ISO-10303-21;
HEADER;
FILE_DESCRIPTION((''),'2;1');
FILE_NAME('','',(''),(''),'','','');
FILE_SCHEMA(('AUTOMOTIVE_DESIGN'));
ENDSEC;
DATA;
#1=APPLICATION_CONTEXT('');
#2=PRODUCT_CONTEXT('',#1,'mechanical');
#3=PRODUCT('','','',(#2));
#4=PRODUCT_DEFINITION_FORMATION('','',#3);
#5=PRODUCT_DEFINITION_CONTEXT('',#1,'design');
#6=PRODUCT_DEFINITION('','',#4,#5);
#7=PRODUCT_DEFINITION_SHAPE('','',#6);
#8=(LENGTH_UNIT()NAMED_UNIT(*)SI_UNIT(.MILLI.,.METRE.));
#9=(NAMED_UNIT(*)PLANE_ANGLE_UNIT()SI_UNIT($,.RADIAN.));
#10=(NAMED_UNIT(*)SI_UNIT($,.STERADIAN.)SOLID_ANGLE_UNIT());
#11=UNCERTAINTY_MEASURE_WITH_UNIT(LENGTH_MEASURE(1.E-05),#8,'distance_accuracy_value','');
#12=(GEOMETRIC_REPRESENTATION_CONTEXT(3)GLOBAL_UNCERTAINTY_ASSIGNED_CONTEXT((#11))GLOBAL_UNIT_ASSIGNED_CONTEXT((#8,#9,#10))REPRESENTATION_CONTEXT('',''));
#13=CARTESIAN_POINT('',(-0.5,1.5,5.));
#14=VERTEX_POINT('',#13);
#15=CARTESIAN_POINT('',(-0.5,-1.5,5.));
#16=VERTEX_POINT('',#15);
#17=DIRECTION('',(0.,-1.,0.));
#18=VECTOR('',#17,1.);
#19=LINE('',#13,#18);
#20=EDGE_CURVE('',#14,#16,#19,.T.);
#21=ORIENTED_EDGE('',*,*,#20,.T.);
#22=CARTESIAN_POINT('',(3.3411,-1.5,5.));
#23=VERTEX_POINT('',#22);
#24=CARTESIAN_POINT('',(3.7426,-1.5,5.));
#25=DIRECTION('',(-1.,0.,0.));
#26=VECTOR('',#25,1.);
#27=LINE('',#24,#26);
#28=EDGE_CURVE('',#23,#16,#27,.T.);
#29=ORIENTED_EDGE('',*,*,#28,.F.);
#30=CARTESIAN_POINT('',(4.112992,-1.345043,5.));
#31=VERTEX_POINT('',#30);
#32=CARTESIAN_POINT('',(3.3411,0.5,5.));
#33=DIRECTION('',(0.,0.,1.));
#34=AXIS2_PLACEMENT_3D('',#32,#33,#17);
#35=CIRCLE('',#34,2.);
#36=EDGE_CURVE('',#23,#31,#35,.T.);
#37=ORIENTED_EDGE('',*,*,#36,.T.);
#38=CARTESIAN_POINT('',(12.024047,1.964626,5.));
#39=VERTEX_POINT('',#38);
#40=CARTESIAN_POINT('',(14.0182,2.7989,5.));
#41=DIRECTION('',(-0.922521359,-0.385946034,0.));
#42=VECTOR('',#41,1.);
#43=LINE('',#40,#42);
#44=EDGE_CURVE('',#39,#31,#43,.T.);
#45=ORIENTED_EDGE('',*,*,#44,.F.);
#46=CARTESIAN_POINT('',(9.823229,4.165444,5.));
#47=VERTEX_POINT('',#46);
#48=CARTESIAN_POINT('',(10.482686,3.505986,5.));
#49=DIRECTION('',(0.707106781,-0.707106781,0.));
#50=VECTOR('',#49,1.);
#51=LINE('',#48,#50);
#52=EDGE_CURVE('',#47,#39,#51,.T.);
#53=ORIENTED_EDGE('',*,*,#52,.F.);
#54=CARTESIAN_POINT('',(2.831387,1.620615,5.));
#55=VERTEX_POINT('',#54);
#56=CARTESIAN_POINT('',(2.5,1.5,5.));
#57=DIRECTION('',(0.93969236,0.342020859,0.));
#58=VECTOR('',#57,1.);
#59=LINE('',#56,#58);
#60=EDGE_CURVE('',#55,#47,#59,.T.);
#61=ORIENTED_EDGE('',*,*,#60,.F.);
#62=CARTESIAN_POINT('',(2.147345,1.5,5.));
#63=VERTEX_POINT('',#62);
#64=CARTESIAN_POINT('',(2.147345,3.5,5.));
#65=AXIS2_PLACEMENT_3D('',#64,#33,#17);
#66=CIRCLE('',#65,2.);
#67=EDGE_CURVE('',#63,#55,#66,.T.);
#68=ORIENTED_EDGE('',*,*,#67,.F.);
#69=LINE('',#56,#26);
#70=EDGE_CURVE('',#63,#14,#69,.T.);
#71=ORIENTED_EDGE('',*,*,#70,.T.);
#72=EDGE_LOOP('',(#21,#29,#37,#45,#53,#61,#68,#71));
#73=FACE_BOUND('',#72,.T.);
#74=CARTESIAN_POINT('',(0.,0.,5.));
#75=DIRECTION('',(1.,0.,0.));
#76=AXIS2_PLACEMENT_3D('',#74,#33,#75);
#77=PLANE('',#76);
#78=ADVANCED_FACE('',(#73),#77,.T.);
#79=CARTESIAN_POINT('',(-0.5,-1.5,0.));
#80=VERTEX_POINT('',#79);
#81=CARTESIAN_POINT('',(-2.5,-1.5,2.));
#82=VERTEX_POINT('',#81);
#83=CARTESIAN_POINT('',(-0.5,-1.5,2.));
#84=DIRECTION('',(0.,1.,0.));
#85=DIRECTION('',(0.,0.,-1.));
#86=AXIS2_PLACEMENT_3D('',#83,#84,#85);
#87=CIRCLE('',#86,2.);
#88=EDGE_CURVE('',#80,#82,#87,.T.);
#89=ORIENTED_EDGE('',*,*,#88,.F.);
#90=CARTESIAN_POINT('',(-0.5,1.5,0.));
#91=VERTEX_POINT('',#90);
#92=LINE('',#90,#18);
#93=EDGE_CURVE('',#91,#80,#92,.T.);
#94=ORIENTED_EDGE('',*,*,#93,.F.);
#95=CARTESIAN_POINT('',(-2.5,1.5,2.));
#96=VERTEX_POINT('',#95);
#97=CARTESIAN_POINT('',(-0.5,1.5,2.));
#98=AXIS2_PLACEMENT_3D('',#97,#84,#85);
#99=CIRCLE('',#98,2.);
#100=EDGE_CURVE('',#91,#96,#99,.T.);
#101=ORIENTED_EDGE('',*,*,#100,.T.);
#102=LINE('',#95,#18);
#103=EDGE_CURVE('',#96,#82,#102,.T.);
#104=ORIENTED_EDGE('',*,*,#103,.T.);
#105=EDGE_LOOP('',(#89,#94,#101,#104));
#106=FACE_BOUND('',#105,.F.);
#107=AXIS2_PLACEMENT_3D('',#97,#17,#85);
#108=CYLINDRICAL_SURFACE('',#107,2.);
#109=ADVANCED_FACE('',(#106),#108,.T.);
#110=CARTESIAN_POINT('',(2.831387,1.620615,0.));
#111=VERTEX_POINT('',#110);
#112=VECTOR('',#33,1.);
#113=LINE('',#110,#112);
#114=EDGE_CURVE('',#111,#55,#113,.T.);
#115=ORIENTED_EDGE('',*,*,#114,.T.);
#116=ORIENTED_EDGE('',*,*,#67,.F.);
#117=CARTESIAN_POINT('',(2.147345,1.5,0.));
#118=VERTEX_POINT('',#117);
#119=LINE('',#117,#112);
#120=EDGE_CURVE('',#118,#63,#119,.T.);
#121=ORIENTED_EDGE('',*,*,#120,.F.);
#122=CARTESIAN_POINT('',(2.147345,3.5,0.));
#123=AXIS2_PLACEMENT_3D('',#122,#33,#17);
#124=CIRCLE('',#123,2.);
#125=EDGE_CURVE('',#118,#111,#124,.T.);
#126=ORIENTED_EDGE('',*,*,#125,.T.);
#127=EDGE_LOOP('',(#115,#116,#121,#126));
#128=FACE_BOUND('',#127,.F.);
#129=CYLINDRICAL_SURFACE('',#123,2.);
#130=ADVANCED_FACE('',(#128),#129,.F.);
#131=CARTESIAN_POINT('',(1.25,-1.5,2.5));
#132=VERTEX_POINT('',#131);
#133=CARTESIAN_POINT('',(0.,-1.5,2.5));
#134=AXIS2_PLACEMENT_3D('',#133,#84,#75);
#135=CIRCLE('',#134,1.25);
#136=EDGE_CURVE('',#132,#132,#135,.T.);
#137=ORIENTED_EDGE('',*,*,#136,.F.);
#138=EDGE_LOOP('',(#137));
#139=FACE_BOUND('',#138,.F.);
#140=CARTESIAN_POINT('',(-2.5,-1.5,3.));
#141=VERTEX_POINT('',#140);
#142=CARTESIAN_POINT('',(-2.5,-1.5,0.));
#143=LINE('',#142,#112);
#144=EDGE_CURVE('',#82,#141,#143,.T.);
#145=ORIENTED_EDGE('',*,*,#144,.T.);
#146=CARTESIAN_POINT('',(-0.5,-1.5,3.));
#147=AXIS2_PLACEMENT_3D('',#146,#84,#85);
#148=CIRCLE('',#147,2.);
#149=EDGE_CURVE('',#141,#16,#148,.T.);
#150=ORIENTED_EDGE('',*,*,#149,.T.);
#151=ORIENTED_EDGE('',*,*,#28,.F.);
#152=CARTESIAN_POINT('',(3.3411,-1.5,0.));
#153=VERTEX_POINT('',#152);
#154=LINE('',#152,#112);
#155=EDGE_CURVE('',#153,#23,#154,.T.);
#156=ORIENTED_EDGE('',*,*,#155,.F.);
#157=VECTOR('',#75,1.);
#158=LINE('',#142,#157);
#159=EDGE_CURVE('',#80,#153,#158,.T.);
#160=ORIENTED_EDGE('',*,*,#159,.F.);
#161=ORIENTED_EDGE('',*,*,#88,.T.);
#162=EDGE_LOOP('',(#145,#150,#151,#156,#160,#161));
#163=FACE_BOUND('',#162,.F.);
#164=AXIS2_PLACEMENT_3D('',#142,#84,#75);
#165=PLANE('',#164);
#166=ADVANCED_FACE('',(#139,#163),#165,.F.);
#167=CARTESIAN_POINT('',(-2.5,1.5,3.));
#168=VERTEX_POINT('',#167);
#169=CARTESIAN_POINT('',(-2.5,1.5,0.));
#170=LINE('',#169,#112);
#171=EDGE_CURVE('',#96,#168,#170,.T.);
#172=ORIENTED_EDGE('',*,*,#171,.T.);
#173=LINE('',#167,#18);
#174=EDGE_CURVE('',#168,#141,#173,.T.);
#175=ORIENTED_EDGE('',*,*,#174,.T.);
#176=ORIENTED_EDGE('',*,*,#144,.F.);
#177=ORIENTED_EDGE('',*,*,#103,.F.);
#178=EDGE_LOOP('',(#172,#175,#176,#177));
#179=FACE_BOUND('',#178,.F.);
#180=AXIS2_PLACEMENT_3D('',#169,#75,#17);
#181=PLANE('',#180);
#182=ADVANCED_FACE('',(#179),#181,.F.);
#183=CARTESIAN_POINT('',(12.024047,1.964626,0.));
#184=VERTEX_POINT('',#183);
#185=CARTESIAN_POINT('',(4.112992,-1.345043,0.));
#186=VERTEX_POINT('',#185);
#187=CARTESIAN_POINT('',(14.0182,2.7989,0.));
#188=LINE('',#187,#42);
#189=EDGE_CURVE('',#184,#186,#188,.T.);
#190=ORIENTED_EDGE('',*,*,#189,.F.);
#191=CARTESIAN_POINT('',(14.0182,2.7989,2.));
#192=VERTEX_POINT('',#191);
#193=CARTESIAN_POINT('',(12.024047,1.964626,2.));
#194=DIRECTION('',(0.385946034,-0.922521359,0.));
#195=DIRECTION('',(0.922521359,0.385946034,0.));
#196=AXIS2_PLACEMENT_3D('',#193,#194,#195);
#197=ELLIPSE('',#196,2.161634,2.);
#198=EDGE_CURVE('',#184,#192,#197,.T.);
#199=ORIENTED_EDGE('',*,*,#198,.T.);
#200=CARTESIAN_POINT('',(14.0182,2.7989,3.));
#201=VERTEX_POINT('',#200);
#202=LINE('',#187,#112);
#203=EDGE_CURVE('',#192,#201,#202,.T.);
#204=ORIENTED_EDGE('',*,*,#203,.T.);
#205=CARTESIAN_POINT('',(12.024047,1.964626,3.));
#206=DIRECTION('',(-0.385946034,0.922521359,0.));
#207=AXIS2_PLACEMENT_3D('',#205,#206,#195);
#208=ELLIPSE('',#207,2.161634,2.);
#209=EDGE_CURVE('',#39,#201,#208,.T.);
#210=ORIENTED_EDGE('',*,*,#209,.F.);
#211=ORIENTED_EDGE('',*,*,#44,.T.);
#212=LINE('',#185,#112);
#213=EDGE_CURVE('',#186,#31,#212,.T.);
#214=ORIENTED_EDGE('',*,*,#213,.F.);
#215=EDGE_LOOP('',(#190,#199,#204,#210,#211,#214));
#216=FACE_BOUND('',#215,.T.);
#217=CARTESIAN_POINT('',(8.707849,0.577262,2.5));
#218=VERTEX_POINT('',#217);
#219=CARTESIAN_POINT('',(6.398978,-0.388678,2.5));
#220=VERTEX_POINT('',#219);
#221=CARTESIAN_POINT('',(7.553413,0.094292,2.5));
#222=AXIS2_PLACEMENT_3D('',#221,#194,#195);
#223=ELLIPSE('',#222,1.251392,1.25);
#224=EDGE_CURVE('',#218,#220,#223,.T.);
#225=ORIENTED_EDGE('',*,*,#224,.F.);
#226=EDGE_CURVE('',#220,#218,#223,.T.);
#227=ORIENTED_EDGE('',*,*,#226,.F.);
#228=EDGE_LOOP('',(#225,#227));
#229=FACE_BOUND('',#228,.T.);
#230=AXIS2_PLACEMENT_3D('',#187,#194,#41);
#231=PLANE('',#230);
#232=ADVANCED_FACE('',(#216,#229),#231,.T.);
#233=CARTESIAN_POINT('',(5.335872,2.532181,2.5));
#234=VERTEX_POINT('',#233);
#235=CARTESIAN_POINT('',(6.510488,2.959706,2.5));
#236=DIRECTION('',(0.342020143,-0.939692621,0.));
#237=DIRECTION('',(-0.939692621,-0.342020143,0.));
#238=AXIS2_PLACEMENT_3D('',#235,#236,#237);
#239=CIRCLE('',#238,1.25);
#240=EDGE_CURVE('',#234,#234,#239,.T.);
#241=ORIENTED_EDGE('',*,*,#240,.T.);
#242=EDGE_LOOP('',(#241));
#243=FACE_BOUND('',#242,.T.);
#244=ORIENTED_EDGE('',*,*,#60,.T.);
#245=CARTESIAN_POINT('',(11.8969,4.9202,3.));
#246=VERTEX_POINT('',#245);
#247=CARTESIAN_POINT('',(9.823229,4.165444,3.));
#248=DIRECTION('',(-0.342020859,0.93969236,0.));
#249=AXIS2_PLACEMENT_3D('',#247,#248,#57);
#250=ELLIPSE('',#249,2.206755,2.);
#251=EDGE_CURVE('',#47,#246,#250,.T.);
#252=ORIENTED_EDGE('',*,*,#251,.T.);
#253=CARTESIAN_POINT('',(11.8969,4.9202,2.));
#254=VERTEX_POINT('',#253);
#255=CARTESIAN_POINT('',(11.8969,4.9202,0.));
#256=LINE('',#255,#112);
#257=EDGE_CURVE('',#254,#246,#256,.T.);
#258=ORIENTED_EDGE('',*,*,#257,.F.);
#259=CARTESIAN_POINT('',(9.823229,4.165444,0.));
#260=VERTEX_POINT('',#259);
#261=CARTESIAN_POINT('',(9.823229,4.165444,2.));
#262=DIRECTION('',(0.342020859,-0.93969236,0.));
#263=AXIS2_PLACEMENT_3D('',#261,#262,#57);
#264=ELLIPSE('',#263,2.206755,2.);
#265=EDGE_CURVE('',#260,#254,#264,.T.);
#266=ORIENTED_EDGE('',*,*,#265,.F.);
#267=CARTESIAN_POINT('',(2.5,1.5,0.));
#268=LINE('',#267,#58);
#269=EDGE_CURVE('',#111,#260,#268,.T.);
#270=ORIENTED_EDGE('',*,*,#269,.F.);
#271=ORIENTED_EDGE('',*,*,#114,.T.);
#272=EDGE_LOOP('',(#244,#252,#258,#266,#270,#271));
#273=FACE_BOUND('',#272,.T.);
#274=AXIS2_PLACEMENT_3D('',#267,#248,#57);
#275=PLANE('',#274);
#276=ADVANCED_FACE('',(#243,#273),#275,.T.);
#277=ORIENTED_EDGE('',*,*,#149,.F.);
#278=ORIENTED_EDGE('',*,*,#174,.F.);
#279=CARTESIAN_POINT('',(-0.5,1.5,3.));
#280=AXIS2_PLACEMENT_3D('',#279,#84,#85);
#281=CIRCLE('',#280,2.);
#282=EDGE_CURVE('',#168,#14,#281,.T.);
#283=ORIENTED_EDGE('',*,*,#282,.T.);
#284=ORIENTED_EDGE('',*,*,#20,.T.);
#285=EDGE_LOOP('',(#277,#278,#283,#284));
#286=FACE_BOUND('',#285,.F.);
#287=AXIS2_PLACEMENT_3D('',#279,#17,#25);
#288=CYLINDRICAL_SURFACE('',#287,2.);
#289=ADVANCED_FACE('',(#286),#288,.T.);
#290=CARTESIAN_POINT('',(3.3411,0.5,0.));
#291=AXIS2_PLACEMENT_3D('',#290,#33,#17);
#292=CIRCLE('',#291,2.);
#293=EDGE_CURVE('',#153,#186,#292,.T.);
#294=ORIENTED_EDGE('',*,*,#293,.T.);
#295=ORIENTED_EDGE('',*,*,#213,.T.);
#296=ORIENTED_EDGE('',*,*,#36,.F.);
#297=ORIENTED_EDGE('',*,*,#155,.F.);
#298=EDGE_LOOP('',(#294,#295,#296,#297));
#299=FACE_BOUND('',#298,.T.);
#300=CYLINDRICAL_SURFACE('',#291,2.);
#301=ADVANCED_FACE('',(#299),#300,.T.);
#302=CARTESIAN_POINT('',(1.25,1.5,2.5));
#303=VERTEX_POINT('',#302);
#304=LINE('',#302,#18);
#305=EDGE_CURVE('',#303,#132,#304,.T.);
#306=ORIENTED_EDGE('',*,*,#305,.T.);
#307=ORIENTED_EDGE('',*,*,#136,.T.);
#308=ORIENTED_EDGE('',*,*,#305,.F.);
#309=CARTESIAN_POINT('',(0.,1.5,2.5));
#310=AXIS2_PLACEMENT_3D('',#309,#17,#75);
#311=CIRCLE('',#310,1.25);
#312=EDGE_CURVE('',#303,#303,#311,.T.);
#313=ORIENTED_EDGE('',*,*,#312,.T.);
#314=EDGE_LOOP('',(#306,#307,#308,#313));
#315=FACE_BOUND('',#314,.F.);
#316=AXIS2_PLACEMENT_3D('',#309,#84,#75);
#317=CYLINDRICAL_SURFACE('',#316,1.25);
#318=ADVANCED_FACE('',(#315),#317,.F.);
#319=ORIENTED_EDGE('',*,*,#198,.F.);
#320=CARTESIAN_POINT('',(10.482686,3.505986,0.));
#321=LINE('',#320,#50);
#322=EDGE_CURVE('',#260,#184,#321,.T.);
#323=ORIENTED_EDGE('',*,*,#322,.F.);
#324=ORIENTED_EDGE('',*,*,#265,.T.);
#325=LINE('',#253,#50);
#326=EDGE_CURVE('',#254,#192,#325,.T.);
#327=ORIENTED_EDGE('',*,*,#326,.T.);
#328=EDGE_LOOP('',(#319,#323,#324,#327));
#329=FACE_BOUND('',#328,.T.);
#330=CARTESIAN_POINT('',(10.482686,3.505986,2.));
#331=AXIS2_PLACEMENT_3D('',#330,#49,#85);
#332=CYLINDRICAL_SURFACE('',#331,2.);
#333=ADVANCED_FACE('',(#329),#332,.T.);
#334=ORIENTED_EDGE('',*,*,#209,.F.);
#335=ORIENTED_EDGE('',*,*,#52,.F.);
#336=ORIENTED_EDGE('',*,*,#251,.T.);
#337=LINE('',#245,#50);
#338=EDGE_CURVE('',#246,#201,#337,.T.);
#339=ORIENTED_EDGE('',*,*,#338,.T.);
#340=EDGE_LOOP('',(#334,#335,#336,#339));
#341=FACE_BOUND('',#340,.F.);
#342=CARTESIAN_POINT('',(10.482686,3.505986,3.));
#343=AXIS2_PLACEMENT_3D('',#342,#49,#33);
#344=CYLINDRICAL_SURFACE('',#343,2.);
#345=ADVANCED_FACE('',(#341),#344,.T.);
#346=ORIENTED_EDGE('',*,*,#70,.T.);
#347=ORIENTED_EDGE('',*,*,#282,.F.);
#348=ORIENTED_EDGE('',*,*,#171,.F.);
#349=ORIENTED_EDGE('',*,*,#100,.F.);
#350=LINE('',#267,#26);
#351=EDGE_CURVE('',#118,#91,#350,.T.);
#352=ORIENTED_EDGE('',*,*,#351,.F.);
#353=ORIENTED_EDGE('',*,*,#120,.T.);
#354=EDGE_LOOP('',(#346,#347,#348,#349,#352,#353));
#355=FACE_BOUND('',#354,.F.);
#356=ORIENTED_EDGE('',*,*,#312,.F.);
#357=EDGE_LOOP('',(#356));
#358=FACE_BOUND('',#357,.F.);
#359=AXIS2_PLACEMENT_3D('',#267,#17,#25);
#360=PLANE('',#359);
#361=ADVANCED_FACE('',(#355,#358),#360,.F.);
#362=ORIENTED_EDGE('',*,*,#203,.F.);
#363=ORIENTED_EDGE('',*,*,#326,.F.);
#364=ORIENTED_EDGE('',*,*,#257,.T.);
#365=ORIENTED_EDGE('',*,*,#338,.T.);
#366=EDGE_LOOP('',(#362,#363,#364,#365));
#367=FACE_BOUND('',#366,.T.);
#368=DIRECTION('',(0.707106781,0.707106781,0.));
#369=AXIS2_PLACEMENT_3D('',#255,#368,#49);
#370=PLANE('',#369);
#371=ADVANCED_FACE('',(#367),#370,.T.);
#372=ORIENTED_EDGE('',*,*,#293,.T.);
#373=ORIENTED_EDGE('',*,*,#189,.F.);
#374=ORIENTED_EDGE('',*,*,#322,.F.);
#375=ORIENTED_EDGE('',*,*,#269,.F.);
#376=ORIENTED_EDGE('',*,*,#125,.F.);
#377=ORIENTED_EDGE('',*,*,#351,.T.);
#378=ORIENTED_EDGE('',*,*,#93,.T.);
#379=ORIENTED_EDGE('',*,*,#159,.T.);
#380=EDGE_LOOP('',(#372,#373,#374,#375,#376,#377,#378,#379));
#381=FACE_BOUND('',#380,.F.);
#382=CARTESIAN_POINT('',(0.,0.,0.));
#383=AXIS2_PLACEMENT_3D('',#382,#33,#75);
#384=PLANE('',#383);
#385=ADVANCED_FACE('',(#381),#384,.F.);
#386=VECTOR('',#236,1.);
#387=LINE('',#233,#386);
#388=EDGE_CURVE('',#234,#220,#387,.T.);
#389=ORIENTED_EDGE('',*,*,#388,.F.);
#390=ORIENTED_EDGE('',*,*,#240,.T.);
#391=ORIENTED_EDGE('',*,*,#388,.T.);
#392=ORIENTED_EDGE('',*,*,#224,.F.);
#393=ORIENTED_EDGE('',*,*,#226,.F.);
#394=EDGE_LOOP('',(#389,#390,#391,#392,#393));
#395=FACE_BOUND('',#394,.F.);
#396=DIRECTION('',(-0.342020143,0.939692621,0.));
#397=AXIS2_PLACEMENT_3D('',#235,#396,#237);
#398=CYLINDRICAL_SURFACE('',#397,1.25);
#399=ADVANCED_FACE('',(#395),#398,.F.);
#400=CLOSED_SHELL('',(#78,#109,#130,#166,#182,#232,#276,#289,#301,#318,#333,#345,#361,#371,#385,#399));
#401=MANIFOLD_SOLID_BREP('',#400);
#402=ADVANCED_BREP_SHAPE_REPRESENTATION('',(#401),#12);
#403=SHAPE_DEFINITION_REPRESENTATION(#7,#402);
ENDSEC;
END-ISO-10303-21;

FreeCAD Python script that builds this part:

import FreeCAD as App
import Part
import Sketcher

V = App.Vector
Q = App.Units.Quantity


def edges_at(feature, points):
    """Names of the edges that pass closest to the given points."""
    edges = feature.Shape.Edges
    near = lambda p: min(range(len(edges)), key=lambda i: edges[i].distToShape(Part.Vertex(*p))[0])
    return sorted({f"Edge{near(p) + 1}" for p in points})

doc = App.newDocument("Part")
body = doc.addObject("PartDesign::Body", "Body")

sketch1 = body.newObject("Sketcher::SketchObject", "Sketch")
sketch1.AttachmentSupport = (doc.getObject("XY_Plane"), [""])
sketch1.MapMode = "FlatFace"
sketch1.addGeometry([
    Part.LineSegment(V(-2.5, 1.5, 0), V(-2.5, -1.5, 0)),
    Part.LineSegment(V(-2.5, -1.5, 0), V(3.7, -1.5, 0)),
    Part.LineSegment(V(3.7, -1.5, 0), V(14, 2.8, 0)),
    Part.LineSegment(V(14, 2.8, 0), V(11.9, 4.9, 0)),
    Part.LineSegment(V(11.9, 4.9, 0), V(2.5, 1.5, 0)),
    Part.LineSegment(V(2.5, 1.5, 0), V(-2.5, 1.5, 0)),
], False)
sketch1.addConstraint([
    Sketcher.Constraint("Coincident", 0, 2, 1, 1),
    Sketcher.Constraint("Coincident", 1, 2, 2, 1),
    Sketcher.Constraint("Coincident", 2, 2, 3, 1),
    Sketcher.Constraint("Coincident", 3, 2, 4, 1),
    Sketcher.Constraint("Coincident", 4, 2, 5, 1),
    Sketcher.Constraint("Coincident", 5, 2, 0, 1),
    Sketcher.Constraint("Vertical", 0),
    Sketcher.Constraint("Horizontal", 1),
    Sketcher.Constraint("Horizontal", 5),
    Sketcher.Constraint("Symmetric", 0, 2, 4, 2, -1, 1),
    Sketcher.Constraint("DistanceX", 5, 2, 5, 1, Q("5 mm")),
    Sketcher.Constraint("DistanceY", 0, 2, 0, 1, Q("3 mm")),
    Sketcher.Constraint("Distance", 3, Q("3 mm")),
    Sketcher.Constraint("Distance", 4, Q("10 mm")),
    Sketcher.Constraint("Angle", 3, Q("135 deg")),
    Sketcher.Constraint("Angle", 4, Q("-160 deg")),
    Sketcher.Constraint("DistanceX", 1, 1, 1, 2, Q("6.2426 mm")),
])
pad1 = body.newObject("PartDesign::Pad", "Pad")
pad1.Profile = sketch1
pad1.Length = 5

sketch2 = body.newObject("Sketcher::SketchObject", "Sketch001")
sketch2.AttachmentSupport = (doc.getObject("XZ_Plane"), [""])
sketch2.MapMode = "FlatFace"
sketch2.AttachmentOffset = App.Placement(V(0, 0, -1.5), App.Rotation())
sketch2.addGeometry(Part.Circle(V(0, 2.5, 0), V(0, 0, 1), 1.2), False)
sketch2.addConstraint([
    Sketcher.Constraint("PointOnObject", 0, 3, -2),
    Sketcher.Constraint("Diameter", 0, Q("2.5 mm")),
    Sketcher.Constraint("DistanceY", -1, 1, 0, 3, Q("2.5 mm")),
])
pocket1 = body.newObject("PartDesign::Pocket", "Pocket")
pocket1.Profile = sketch2
pocket1.Length = 5
pocket1.Reversed = True
doc.recompute()

fillet = body.newObject("PartDesign::Fillet", "Fillet")
fillet.Base = (pocket1, edges_at(pocket1, [(2.5, 1.5, 2.5), (3.743, -1.5, 2.5)]))
fillet.Radius = 2

sketch3 = body.newObject("Sketcher::SketchObject", "Sketch002")
sketch3.Placement = App.Placement(V(11.8969, 4.9202, 0), App.Rotation(V(-0.939692621, -0.342020143, 0), V(0, 0, 1), V(-0.342020143, 0.939692621, 0), "ZXY"))
sketch3.addGeometry(Part.Circle(V(5.7, 2.5, 0), V(0, 0, 1), 1.2), False)
sketch3.addConstraint([
    Sketcher.Constraint("Diameter", 0, Q("2.5 mm")),
    Sketcher.Constraint("DistanceY", -1, 1, 0, 3, Q("2.5 mm")),
    Sketcher.Constraint("DistanceX", -1, 1, 0, 3, Q("5.732 mm")),
])
pocket2 = body.newObject("PartDesign::Pocket", "Pocket001")
pocket2.Profile = sketch3
pocket2.Type = "UpToFirst"
doc.recompute()

fillet2 = body.newObject("PartDesign::Fillet", "Fillet001")
fillet2.Base = (pocket2, edges_at(pocket2, [
    (12.958, 3.86, 5),
    (12.958, 3.86, 0),
    (-2.5, 0, 5),
    (-2.5, 0, 0),
]))
fillet2.Radius = 2

doc.recompute()
